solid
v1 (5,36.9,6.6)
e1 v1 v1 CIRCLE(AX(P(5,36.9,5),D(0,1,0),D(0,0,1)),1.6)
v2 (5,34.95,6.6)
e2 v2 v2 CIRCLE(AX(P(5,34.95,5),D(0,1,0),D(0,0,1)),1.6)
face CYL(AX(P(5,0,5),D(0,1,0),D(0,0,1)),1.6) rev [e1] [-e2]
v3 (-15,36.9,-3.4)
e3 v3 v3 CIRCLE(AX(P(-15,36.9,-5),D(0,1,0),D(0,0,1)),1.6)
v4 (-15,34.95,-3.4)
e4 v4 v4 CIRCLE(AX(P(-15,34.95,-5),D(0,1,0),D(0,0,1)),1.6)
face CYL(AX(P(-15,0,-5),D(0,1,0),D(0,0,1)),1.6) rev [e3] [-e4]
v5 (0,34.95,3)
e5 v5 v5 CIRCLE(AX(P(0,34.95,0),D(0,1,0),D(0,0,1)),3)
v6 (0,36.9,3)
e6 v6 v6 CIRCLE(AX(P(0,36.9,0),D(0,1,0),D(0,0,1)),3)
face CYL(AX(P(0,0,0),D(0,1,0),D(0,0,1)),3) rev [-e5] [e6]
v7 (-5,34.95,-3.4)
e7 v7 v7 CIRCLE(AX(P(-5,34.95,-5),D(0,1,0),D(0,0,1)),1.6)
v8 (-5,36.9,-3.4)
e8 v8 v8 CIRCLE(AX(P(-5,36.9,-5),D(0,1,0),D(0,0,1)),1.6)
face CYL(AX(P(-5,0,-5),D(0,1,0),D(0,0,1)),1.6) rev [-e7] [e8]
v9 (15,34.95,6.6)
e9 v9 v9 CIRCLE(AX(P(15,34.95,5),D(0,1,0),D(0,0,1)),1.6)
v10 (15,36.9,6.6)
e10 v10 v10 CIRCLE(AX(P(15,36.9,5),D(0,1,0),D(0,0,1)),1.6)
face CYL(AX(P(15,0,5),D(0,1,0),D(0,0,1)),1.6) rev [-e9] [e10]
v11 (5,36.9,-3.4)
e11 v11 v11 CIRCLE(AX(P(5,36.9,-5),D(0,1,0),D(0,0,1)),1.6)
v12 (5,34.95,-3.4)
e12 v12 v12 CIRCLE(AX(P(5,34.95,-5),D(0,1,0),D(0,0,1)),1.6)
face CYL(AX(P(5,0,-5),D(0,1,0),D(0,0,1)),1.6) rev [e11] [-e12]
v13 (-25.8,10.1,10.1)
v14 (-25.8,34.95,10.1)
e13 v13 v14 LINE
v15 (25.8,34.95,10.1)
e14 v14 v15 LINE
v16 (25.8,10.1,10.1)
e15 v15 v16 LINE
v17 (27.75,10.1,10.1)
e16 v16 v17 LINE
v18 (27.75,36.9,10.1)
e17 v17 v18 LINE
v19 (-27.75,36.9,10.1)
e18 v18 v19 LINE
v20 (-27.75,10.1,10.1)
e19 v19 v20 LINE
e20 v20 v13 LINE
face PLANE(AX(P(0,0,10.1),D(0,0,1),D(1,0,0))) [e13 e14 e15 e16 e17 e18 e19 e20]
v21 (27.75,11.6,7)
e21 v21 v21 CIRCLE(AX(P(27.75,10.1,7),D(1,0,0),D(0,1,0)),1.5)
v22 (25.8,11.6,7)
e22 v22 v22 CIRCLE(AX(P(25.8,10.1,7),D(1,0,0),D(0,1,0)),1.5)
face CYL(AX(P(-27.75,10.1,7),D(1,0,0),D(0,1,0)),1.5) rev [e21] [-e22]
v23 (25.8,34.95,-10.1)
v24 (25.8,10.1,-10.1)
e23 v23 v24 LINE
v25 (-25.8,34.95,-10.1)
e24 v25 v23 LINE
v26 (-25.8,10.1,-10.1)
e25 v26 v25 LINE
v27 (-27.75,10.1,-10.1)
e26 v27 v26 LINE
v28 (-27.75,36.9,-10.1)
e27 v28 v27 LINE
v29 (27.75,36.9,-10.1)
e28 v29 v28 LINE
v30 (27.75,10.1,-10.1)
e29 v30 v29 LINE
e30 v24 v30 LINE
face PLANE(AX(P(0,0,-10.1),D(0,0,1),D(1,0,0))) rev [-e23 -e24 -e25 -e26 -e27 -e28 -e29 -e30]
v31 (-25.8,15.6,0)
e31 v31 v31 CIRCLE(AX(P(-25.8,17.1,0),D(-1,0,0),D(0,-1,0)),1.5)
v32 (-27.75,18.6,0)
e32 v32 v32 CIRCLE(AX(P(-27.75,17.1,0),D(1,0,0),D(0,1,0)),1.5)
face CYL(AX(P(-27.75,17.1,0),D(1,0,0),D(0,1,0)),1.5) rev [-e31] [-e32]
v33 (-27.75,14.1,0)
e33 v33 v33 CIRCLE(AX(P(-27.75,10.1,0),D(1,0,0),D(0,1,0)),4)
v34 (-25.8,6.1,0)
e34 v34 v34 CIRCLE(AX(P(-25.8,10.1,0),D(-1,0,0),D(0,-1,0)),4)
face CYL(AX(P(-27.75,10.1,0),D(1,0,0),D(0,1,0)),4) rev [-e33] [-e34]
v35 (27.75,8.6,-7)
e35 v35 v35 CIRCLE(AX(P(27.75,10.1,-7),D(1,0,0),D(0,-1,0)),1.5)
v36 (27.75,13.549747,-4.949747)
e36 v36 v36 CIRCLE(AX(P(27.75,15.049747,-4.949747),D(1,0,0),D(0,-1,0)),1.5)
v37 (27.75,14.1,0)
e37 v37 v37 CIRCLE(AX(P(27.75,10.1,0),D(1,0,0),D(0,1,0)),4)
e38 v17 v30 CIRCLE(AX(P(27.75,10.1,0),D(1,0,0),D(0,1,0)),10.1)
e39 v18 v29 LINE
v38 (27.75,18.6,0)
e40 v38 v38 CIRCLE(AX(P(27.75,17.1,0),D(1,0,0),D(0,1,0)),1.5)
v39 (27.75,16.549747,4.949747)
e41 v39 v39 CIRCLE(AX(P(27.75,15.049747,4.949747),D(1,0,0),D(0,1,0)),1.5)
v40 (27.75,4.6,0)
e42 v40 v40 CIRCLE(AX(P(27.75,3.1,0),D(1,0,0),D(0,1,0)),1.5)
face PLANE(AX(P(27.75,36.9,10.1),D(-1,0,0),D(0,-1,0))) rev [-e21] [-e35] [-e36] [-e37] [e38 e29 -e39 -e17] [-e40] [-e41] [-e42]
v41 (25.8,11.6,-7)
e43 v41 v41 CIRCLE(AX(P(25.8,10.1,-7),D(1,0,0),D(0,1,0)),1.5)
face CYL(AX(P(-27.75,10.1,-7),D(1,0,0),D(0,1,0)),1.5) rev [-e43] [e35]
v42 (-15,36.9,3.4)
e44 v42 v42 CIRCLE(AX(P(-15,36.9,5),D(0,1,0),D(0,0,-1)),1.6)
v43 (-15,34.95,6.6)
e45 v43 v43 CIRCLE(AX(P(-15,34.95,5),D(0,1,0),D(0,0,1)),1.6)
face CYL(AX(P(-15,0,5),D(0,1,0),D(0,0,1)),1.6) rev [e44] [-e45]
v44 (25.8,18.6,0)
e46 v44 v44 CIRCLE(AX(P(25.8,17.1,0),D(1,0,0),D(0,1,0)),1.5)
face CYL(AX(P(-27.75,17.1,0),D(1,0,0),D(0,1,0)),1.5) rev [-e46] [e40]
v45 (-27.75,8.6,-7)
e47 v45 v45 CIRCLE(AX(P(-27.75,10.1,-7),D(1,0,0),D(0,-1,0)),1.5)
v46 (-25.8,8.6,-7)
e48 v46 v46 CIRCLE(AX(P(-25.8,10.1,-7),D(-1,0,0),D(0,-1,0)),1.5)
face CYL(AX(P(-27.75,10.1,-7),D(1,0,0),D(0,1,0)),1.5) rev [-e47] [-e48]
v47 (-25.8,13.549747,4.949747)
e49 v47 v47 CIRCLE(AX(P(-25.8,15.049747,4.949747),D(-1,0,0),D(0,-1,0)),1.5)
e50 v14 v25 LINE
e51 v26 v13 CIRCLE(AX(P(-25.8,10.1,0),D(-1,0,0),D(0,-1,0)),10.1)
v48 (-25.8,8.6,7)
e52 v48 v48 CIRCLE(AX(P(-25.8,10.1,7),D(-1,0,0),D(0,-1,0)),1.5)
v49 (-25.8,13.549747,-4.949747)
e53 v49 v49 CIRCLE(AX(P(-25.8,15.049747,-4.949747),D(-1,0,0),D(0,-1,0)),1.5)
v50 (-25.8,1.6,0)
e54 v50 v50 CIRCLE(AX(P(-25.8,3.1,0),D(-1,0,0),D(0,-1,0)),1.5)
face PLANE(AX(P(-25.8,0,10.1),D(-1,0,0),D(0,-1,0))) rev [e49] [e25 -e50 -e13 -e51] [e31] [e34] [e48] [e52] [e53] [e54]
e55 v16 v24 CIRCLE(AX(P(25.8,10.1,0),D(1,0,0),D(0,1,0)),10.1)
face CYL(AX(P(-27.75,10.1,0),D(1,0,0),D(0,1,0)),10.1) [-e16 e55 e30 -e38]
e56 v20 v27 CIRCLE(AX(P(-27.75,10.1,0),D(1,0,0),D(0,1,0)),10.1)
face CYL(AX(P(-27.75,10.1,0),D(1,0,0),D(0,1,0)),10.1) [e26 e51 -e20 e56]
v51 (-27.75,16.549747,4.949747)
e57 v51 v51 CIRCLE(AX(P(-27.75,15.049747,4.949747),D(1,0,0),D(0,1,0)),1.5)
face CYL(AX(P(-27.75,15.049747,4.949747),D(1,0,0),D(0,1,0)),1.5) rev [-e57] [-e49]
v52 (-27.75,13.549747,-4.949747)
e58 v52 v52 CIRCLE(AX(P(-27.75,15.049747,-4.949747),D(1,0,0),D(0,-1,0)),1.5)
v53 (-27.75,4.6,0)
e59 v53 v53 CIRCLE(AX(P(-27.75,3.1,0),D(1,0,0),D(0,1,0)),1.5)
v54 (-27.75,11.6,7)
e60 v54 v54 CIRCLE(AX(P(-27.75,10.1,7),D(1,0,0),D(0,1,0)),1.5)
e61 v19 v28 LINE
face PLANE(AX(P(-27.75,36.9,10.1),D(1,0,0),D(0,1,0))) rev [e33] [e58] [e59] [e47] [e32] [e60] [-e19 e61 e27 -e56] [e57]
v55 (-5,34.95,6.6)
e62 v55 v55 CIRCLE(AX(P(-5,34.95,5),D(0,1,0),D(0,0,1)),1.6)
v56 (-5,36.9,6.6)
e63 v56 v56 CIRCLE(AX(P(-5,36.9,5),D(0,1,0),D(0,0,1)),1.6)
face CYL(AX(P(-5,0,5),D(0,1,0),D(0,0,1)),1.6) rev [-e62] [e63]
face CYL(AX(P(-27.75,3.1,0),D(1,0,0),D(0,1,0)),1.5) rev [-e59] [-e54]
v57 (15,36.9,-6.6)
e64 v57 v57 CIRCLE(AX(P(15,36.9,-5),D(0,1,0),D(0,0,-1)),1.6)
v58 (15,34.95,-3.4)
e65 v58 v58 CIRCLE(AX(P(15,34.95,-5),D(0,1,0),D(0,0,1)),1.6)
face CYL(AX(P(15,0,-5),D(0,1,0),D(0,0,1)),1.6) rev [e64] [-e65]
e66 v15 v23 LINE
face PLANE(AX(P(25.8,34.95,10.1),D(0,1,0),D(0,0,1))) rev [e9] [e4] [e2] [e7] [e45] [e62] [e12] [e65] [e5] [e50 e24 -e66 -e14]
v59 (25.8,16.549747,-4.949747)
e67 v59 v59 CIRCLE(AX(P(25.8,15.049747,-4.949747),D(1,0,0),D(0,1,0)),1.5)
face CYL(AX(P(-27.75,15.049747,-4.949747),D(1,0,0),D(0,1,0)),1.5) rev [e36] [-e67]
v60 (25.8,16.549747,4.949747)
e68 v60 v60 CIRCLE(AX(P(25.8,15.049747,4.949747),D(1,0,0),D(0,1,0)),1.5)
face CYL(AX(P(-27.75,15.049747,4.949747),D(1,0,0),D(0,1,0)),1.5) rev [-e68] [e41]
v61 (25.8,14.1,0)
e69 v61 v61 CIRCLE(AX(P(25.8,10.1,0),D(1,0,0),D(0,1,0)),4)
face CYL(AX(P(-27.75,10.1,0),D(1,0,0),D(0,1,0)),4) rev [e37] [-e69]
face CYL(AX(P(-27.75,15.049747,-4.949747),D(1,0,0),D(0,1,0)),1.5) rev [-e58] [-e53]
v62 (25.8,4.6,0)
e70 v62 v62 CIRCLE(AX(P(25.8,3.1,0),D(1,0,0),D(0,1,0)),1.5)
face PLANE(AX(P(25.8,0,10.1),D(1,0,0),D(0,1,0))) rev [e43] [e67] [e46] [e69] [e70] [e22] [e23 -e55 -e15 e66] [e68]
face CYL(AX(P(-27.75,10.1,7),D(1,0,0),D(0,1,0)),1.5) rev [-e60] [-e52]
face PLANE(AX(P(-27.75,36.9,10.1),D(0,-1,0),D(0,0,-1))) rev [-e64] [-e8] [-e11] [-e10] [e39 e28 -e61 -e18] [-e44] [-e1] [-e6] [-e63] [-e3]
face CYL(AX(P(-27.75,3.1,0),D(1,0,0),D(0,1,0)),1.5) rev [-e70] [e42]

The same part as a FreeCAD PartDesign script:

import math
import FreeCAD as App
import Part
import Sketcher
Q = App.Units.Quantity


def add_polygon(sketch, points):
    """Adds a closed chain of lines whose ends are joined by coincident constraints."""
    first, n = sketch.GeometryCount, len(points)
    for a, b in zip(points, points[1:] + points[:1]):
        sketch.addGeometry(Part.LineSegment(App.Vector(*a, 0), App.Vector(*b, 0)), False)
    for i in range(n):
        sketch.addConstraint(Sketcher.Constraint("Coincident", first + i, 2, first + (i + 1) % n, 1))

doc = App.newDocument("Part")
params = doc.addObject("Spreadsheet::Sheet", "Params")
for row, (alias, value) in enumerate([
    ("sketch1_width", "55.5 mm"),
    ("sketch1_width2", "51.6 mm"),
    ("sketch1_height", "36.9 mm"),
    ("sketch1_height2", "34.95 mm"),
    ("pad1_length", "20.2 mm"),
    ("sketch2_radius", "10.1 mm"),
    ("sketch3_diameter", "6 mm"),
    ("sketch3_diameter2", "3.2 mm"),
    ("sketch4_diameter", "8 mm"),
    ("sketch4_diameter2", "3 mm"),
], start=1):
    params.set(f"A{row}", alias)
    params.set(f"B{row}", "=" + value)
    params.setAlias(f"B{row}", alias)

body = doc.addObject("PartDesign::Body", "Body")

sketch1 = body.newObject("Sketcher::SketchObject", "Sketch")
sketch1.AttachmentSupport = (doc.getObject("XY_Plane"), [""])
sketch1.MapMode = "FlatFace"
add_polygon(sketch1, [(27.75, 36.9), (-27.75, 36.9), (-27.75, 0), (-25.8, 0), (-25.8, 34.95), (25.8, 34.95), (25.8, 0), (27.75, 0)])
sketch1.addConstraint([
    Sketcher.Constraint("Horizontal", 0),
    Sketcher.Constraint("Vertical", 1),
    Sketcher.Constraint("Horizontal", 2),
    Sketcher.Constraint("Vertical", 3),
    Sketcher.Constraint("Horizontal", 4),
    Sketcher.Constraint("Vertical", 5),
    Sketcher.Constraint("Horizontal", 6),
    Sketcher.Constraint("Vertical", 7),
    Sketcher.Constraint("Symmetric", 2, 2, 5, 2, -1, 1),
    Sketcher.Constraint("Symmetric", 1, 2, 6, 2, -2),
    Sketcher.Constraint("DistanceX", 0, 2, 0, 1, Q("55.5 mm")),
    Sketcher.Constraint("DistanceX", 4, 1, 4, 2, Q("51.6 mm")),
    Sketcher.Constraint("DistanceY", 1, 2, 1, 1, Q("36.9 mm")),
    Sketcher.Constraint("DistanceY", 3, 1, 3, 2, Q("34.95 mm")),
])
sketch1.setExpression("Constraints[18]", "Params.sketch1_width")
sketch1.setExpression("Constraints[19]", "Params.sketch1_width2")
sketch1.setExpression("Constraints[20]", "Params.sketch1_height")
sketch1.setExpression("Constraints[21]", "Params.sketch1_height2")
pad1 = body.newObject("PartDesign::Pad", "Pad")
pad1.Profile = sketch1
pad1.setExpression("Length", "Params.pad1_length")
pad1.Midplane = True

sketch2 = body.newObject("Sketcher::SketchObject", "Sketch001")
sketch2.AttachmentSupport = (doc.getObject("YZ_Plane"), [""])
sketch2.MapMode = "FlatFace"
sketch2.AttachmentOffset = App.Placement(App.Vector(0, 0, 27.75), App.Rotation())
sketch2.addGeometry([
    Part.ArcOfCircle(Part.Circle(App.Vector(10.1, 0, 0), App.Vector(0, 0, 1), 10.1), math.radians(90), math.radians(180)),
    Part.LineSegment(App.Vector(10.1, 10.1, 0), App.Vector(0, 10.1, 0)),
    Part.LineSegment(App.Vector(0, 10.1, 0), App.Vector(0, 0, 0)),
    Part.ArcOfCircle(Part.Circle(App.Vector(10.1, 0, 0), App.Vector(0, 0, 1), 10.1), math.radians(180), math.radians(270)),
    Part.LineSegment(App.Vector(0, 0, 0), App.Vector(0, -10.1, 0)),
    Part.LineSegment(App.Vector(0, -10.1, 0), App.Vector(10.1, -10.1, 0)),
], False)
sketch2.addConstraint([
    Sketcher.Constraint("Tangent", 0, 1, 1, 1),
    Sketcher.Constraint("Coincident", 1, 2, 2, 1),
    Sketcher.Constraint("Tangent", 2, 2, 0, 2),
    Sketcher.Constraint("Tangent", 3, 1, 4, 1),
    Sketcher.Constraint("Coincident", 4, 2, 5, 1),
    Sketcher.Constraint("Tangent", 5, 2, 3, 2),
    Sketcher.Constraint("Horizontal", 1),
    Sketcher.Constraint("Vertical", 2),
    Sketcher.Constraint("Vertical", 4),
    Sketcher.Constraint("Horizontal", 5),
    Sketcher.Constraint("Coincident", 2, 2, -1, 1),
    Sketcher.Constraint("Coincident", 3, 1, -1, 1),
    Sketcher.Constraint("Equal", 0, 3),
    Sketcher.Constraint("Radius", 0, Q("10.1 mm")),
])
sketch2.setExpression("Constraints[13]", "Params.sketch2_radius")
pocket1 = body.newObject("PartDesign::Pocket", "Pocket")
pocket1.Profile = sketch2
pocket1.Type = "ThroughAll"

sketch3 = body.newObject("Sketcher::SketchObject", "Sketch002")
sketch3.AttachmentSupport = (doc.getObject("XZ_Plane"), [""])
sketch3.MapMode = "FlatFace"
sketch3.AttachmentOffset = App.Placement(App.Vector(0, 0, -36.9), App.Rotation())
sketch3.addGeometry([
    Part.Circle(App.Vector(0, 0, 0), App.Vector(0, 0, 1), 3),
    Part.Circle(App.Vector(-5, -5, 0), App.Vector(0, 0, 1), 1.6),
    Part.Circle(App.Vector(-5, 5, 0), App.Vector(0, 0, 1), 1.6),
    Part.Circle(App.Vector(5, 5, 0), App.Vector(0, 0, 1), 1.6),
    Part.Circle(App.Vector(5, -5, 0), App.Vector(0, 0, 1), 1.6),
    Part.Circle(App.Vector(-15, -5, 0), App.Vector(0, 0, 1), 1.6),
    Part.Circle(App.Vector(-15, 5, 0), App.Vector(0, 0, 1), 1.6),
    Part.Circle(App.Vector(15, 5, 0), App.Vector(0, 0, 1), 1.6),
    Part.Circle(App.Vector(15, -5, 0), App.Vector(0, 0, 1), 1.6),
], False)
sketch3.addConstraint([
    Sketcher.Constraint("Coincident", 0, 3, -1, 1),
    Sketcher.Constraint("Equal", 1, 2),
    Sketcher.Constraint("Equal", 2, 3),
    Sketcher.Constraint("Equal", 3, 4),
    Sketcher.Constraint("Equal", 4, 5),
    Sketcher.Constraint("Equal", 5, 6),
    Sketcher.Constraint("Equal", 6, 7),
    Sketcher.Constraint("Equal", 7, 8),
    Sketcher.Constraint("Symmetric", 1, 3, 3, 3, -1, 1),
    Sketcher.Constraint("Symmetric", 2, 3, 4, 3, -1, 1),
    Sketcher.Constraint("Symmetric", 5, 3, 7, 3, -1, 1),
    Sketcher.Constraint("Symmetric", 6, 3, 8, 3, -1, 1),
    Sketcher.Constraint("Symmetric", 2, 3, 3, 3, -2),
    Sketcher.Constraint("Symmetric", 6, 3, 7, 3, -2),
    Sketcher.Constraint("Horizontal", 4, 3, 5, 3),
    Sketcher.Constraint("Diameter", 0, Q("6 mm")),
    Sketcher.Constraint("Diameter", 1, Q("3.2 mm")),
    Sketcher.Constraint("DistanceX", 1, 3, -1, 1, Q("5 mm")),
    Sketcher.Constraint("DistanceY", 1, 3, -1, 1, Q("5 mm")),
    Sketcher.Constraint("DistanceX", 5, 3, -1, 1, Q("15 mm")),
])
sketch3.setExpression("Constraints[15]", "Params.sketch3_diameter")
sketch3.setExpression("Constraints[16]", "Params.sketch3_diameter2")
pocket2 = body.newObject("PartDesign::Pocket", "Pocket001")
pocket2.Profile = sketch3
pocket2.Type = "ThroughAll"
pocket2.Reversed = True

sketch4 = body.newObject("Sketcher::SketchObject", "Sketch003")
sketch4.AttachmentSupport = (doc.getObject("YZ_Plane"), [""])
sketch4.MapMode = "FlatFace"
sketch4.AttachmentOffset = App.Placement(App.Vector(0, 0, 27.75), App.Rotation())
sketch4.addGeometry([
    Part.Circle(App.Vector(10.1, 0, 0), App.Vector(0, 0, 1), 4),
    Part.Circle(App.Vector(10.1, 7, 0), App.Vector(0, 0, 1), 1.5),
    Part.Circle(App.Vector(15.049747, 4.949747, 0), App.Vector(0, 0, 1), 1.5),
    Part.Circle(App.Vector(17.1, 0, 0), App.Vector(0, 0, 1), 1.5),
    Part.Circle(App.Vector(3.1, 0, 0), App.Vector(0, 0, 1), 1.5),
    Part.Circle(App.Vector(10.1, -7, 0), App.Vector(0, 0, 1), 1.5),
    Part.Circle(App.Vector(15.049747, -4.949747, 0), App.Vector(0, 0, 1), 1.5),
], False)
sketch4.addConstraint([
    Sketcher.Constraint("Equal", 1, 2),
    Sketcher.Constraint("Equal", 2, 3),
    Sketcher.Constraint("Equal", 3, 4),
    Sketcher.Constraint("Equal", 4, 5),
    Sketcher.Constraint("Equal", 5, 6),
    Sketcher.Constraint("Symmetric", 1, 3, 5, 3, -1),
    Sketcher.Constraint("Symmetric", 2, 3, 6, 3, -1),
    Sketcher.Constraint("PointOnObject", 0, 3, -1),
    Sketcher.Constraint("PointOnObject", 3, 3, -1),
    Sketcher.Constraint("PointOnObject", 4, 3, -1),
    Sketcher.Constraint("Vertical", 0, 3, 1, 3),
    Sketcher.Constraint("Diameter", 0, Q("8 mm")),
    Sketcher.Constraint("Diameter", 1, Q("3 mm")),
    Sketcher.Constraint("DistanceY", -1, 1, 1, 3, Q("7 mm")),
    Sketcher.Constraint("DistanceX", 0, 3, 3, 3, Q("7 mm")),
    Sketcher.Constraint("DistanceX", 4, 3, 0, 3, Q("7 mm")),
    Sketcher.Constraint("DistanceX", -1, 1, 0, 3, Q("10.1 mm")),
    Sketcher.Constraint("DistanceX", -1, 1, 2, 3, Q("15.049747 mm")),
    Sketcher.Constraint("DistanceY", -1, 1, 2, 3, Q("4.949747 mm")),
])
sketch4.setExpression("Constraints[11]", "Params.sketch4_diameter")
sketch4.setExpression("Constraints[12]", "Params.sketch4_diameter2")
pocket3 = body.newObject("PartDesign::Pocket", "Pocket002")
pocket3.Profile = sketch4
pocket3.Type = "ThroughAll"

doc.recompute()
